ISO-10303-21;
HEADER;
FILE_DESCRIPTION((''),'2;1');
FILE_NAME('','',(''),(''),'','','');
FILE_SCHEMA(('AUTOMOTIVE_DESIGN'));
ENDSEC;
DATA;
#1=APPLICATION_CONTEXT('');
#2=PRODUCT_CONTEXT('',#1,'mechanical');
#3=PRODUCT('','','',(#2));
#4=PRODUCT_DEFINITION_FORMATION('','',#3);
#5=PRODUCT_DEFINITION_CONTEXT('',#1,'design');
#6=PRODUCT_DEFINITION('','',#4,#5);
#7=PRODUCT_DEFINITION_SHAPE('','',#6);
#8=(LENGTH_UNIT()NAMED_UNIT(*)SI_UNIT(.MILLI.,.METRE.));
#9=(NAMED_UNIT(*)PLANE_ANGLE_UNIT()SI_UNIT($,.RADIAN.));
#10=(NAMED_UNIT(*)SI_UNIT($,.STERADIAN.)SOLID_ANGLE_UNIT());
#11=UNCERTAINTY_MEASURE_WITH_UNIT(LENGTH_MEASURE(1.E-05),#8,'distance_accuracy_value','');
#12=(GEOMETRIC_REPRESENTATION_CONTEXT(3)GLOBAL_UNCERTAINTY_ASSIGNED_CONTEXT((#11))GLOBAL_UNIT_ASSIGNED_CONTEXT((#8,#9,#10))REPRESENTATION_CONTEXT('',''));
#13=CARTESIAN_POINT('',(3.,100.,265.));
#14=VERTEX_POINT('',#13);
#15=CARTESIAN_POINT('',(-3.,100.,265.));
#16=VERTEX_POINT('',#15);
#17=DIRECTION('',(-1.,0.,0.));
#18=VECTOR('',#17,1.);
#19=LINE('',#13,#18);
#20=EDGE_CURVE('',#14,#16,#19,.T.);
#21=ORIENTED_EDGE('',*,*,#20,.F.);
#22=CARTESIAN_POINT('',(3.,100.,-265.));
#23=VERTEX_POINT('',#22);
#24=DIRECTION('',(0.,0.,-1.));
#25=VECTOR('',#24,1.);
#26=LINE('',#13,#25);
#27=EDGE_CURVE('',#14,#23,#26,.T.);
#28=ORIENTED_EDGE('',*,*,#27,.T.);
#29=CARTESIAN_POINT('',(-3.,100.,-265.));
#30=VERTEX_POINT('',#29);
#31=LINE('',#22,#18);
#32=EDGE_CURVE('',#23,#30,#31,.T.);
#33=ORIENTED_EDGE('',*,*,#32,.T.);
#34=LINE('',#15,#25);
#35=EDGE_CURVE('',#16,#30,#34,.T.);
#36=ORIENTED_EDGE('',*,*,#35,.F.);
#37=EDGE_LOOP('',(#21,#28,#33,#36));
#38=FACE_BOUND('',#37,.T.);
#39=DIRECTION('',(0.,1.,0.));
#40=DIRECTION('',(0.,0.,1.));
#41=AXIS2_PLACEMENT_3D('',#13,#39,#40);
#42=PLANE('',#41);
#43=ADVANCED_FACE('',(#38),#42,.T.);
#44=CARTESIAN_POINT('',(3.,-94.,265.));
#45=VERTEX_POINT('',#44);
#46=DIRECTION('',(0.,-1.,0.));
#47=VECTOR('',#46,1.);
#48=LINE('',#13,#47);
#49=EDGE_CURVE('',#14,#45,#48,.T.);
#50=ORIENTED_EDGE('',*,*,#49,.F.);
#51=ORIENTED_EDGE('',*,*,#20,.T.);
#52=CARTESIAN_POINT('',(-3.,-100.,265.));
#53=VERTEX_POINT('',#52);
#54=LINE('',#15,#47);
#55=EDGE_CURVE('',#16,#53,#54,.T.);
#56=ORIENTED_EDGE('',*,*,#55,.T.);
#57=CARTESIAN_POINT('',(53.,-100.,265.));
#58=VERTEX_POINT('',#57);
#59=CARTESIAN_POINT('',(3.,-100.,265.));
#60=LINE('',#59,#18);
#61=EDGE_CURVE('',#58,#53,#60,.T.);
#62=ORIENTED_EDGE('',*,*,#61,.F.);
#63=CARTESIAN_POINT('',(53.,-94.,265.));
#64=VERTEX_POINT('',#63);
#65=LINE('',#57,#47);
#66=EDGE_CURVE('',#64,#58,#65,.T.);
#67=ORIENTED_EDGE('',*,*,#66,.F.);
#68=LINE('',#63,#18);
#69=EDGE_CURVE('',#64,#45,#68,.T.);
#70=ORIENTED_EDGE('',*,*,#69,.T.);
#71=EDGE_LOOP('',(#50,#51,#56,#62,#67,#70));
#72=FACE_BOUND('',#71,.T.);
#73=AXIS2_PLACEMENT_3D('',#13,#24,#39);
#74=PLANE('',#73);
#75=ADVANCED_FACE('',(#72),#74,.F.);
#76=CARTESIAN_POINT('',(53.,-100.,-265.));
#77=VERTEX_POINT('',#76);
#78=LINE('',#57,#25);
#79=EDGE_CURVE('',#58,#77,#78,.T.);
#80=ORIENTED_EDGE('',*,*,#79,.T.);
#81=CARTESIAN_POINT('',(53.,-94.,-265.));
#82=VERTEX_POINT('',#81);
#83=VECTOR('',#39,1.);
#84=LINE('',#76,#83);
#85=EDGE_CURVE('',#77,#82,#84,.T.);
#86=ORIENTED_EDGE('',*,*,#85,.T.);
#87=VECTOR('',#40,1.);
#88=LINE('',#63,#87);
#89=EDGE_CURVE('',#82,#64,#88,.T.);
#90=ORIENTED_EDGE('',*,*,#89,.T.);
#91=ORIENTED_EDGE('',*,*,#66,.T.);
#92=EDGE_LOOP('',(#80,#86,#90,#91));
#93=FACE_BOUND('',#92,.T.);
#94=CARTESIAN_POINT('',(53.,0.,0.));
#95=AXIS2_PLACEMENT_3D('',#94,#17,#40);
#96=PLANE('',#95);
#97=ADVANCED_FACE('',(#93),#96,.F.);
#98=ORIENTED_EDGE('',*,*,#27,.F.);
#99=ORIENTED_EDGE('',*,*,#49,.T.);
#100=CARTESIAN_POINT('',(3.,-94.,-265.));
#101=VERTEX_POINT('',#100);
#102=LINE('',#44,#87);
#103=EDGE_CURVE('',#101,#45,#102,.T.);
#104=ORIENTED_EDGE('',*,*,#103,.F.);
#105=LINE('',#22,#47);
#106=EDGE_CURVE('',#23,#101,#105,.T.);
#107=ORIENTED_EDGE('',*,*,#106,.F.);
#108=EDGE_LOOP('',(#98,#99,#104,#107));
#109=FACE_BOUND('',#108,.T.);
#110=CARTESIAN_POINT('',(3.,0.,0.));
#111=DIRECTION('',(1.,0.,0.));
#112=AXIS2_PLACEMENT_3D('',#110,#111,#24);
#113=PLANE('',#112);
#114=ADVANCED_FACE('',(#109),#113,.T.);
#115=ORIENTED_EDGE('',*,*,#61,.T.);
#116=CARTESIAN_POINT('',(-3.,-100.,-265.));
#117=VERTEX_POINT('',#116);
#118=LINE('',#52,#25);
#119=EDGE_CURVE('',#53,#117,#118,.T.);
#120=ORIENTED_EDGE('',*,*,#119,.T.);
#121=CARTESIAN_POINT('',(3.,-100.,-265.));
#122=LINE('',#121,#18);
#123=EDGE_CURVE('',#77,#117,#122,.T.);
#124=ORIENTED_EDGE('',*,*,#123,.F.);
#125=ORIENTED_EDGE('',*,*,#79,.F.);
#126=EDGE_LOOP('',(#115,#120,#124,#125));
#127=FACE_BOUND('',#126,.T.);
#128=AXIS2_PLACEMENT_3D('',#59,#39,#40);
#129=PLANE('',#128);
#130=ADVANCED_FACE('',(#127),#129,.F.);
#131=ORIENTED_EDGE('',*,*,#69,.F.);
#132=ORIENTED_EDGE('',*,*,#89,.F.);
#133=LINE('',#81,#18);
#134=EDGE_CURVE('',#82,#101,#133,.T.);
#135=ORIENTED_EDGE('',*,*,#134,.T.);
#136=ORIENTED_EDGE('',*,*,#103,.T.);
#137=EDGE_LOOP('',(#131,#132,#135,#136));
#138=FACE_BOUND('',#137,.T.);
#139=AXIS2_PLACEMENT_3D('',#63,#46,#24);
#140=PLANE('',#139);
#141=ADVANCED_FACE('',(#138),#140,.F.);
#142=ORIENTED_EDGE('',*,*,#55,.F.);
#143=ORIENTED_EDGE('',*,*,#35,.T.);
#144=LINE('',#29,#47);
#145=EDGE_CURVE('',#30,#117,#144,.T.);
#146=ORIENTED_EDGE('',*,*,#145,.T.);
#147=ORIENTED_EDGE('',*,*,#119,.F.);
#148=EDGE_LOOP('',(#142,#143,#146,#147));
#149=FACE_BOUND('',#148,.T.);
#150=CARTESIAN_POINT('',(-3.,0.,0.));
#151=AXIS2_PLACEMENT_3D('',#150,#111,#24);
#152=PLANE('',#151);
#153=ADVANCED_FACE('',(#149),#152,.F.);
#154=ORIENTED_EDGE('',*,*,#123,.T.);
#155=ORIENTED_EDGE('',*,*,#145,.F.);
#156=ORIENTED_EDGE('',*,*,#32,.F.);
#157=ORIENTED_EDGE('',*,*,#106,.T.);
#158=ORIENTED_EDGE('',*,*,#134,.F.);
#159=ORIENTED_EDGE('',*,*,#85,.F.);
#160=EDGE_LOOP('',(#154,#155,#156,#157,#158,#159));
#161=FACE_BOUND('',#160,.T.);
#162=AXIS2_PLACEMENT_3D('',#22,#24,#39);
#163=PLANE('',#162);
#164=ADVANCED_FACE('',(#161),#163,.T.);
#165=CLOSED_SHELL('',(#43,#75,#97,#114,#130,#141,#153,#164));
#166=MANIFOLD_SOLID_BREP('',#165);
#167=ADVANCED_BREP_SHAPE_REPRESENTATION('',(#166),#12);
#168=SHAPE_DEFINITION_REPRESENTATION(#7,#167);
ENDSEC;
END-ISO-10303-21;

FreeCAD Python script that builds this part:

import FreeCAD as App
import Part
import Sketcher

doc = App.newDocument("Part")
params = doc.addObject("Spreadsheet::Sheet", "Params")
for row, (alias, value) in enumerate([
    ("sketch1_width", "200 mm"),
    ("sketch1_height", "530 mm"),
    ("pad1_length", "6 mm"),
    ("sketch2_width", "6 mm"),
    ("sketch2_height", "530 mm"),
    ("pad2_length", "50 mm"),
], start=1):
    params.set(f"A{row}", alias)
    params.set(f"B{row}", "=" + value)
    params.setAlias(f"B{row}", alias)

body = doc.addObject("PartDesign::Body", "Body")

sketch1 = body.newObject("Sketcher::SketchObject", "Sketch")
sketch1.AttachmentSupport = (doc.getObject("YZ_Plane"), [""])
sketch1.MapMode = "FlatFace"
sketch1.addGeometry([
    Part.LineSegment(App.Vector(100, 265, 0), App.Vector(-100, 265, 0)),
    Part.LineSegment(App.Vector(-100, 265, 0), App.Vector(-100, -265, 0)),
    Part.LineSegment(App.Vector(-100, -265, 0), App.Vector(100, -265, 0)),
    Part.LineSegment(App.Vector(100, -265, 0), App.Vector(100, 265, 0)),
], False)
sketch1.addConstraint([
    Sketcher.Constraint("Coincident", 0, 2, 1, 1),
    Sketcher.Constraint("Coincident", 1, 2, 2, 1),
    Sketcher.Constraint("Coincident", 2, 2, 3, 1),
    Sketcher.Constraint("Coincident", 3, 2, 0, 1),
    Sketcher.Constraint("Horizontal", 0),
    Sketcher.Constraint("Vertical", 1),
    Sketcher.Constraint("Horizontal", 2),
    Sketcher.Constraint("Vertical", 3),
    Sketcher.Constraint("Symmetric", 0, 2, 2, 2, -1, 1),
    Sketcher.Constraint("DistanceX", 0, 2, 0, 1, 200.0),
    Sketcher.Constraint("DistanceY", 1, 2, 1, 1, 530.0),
])
sketch1.setExpression("Constraints[9]", "Params.sketch1_width")
sketch1.setExpression("Constraints[10]", "Params.sketch1_height")
pad1 = body.newObject("PartDesign::Pad", "Pad")
pad1.Profile = sketch1
pad1.setExpression("Length", "Params.pad1_length")
pad1.Midplane = True

sketch2 = body.newObject("Sketcher::SketchObject", "Sketch001")
sketch2.AttachmentSupport = (doc.getObject("YZ_Plane"), [""])
sketch2.MapMode = "FlatFace"
sketch2.AttachmentOffset = App.Placement(App.Vector(0, 0, 3), App.Rotation())
sketch2.addGeometry([
    Part.LineSegment(App.Vector(-94, 265, 0), App.Vector(-100, 265, 0)),
    Part.LineSegment(App.Vector(-100, 265, 0), App.Vector(-100, -265, 0)),
    Part.LineSegment(App.Vector(-100, -265, 0), App.Vector(-94, -265, 0)),
    Part.LineSegment(App.Vector(-94, -265, 0), App.Vector(-94, 265, 0)),
], False)
sketch2.addConstraint([
    Sketcher.Constraint("Coincident", 0, 2, 1, 1),
    Sketcher.Constraint("Coincident", 1, 2, 2, 1),
    Sketcher.Constraint("Coincident", 2, 2, 3, 1),
    Sketcher.Constraint("Coincident", 3, 2, 0, 1),
    Sketcher.Constraint("Horizontal", 0),
    Sketcher.Constraint("Vertical", 1),
    Sketcher.Constraint("Horizontal", 2),
    Sketcher.Constraint("Vertical", 3),
    Sketcher.Constraint("DistanceX", 0, 2, 0, 1, 6.0),
    Sketcher.Constraint("DistanceY", 1, 2, 1, 1, 530.0),
    Sketcher.Constraint("DistanceX", 0, 2, -1, 1, 100.0),
    Sketcher.Constraint("DistanceY", -1, 1, 0, 2, 265.0),
])
sketch2.setExpression("Constraints[8]", "Params.sketch2_width")
sketch2.setExpression("Constraints[9]", "Params.sketch2_height")
pad2 = body.newObject("PartDesign::Pad", "Pad001")
pad2.Profile = sketch2
pad2.setExpression("Length", "Params.pad2_length")

doc.recompute()
